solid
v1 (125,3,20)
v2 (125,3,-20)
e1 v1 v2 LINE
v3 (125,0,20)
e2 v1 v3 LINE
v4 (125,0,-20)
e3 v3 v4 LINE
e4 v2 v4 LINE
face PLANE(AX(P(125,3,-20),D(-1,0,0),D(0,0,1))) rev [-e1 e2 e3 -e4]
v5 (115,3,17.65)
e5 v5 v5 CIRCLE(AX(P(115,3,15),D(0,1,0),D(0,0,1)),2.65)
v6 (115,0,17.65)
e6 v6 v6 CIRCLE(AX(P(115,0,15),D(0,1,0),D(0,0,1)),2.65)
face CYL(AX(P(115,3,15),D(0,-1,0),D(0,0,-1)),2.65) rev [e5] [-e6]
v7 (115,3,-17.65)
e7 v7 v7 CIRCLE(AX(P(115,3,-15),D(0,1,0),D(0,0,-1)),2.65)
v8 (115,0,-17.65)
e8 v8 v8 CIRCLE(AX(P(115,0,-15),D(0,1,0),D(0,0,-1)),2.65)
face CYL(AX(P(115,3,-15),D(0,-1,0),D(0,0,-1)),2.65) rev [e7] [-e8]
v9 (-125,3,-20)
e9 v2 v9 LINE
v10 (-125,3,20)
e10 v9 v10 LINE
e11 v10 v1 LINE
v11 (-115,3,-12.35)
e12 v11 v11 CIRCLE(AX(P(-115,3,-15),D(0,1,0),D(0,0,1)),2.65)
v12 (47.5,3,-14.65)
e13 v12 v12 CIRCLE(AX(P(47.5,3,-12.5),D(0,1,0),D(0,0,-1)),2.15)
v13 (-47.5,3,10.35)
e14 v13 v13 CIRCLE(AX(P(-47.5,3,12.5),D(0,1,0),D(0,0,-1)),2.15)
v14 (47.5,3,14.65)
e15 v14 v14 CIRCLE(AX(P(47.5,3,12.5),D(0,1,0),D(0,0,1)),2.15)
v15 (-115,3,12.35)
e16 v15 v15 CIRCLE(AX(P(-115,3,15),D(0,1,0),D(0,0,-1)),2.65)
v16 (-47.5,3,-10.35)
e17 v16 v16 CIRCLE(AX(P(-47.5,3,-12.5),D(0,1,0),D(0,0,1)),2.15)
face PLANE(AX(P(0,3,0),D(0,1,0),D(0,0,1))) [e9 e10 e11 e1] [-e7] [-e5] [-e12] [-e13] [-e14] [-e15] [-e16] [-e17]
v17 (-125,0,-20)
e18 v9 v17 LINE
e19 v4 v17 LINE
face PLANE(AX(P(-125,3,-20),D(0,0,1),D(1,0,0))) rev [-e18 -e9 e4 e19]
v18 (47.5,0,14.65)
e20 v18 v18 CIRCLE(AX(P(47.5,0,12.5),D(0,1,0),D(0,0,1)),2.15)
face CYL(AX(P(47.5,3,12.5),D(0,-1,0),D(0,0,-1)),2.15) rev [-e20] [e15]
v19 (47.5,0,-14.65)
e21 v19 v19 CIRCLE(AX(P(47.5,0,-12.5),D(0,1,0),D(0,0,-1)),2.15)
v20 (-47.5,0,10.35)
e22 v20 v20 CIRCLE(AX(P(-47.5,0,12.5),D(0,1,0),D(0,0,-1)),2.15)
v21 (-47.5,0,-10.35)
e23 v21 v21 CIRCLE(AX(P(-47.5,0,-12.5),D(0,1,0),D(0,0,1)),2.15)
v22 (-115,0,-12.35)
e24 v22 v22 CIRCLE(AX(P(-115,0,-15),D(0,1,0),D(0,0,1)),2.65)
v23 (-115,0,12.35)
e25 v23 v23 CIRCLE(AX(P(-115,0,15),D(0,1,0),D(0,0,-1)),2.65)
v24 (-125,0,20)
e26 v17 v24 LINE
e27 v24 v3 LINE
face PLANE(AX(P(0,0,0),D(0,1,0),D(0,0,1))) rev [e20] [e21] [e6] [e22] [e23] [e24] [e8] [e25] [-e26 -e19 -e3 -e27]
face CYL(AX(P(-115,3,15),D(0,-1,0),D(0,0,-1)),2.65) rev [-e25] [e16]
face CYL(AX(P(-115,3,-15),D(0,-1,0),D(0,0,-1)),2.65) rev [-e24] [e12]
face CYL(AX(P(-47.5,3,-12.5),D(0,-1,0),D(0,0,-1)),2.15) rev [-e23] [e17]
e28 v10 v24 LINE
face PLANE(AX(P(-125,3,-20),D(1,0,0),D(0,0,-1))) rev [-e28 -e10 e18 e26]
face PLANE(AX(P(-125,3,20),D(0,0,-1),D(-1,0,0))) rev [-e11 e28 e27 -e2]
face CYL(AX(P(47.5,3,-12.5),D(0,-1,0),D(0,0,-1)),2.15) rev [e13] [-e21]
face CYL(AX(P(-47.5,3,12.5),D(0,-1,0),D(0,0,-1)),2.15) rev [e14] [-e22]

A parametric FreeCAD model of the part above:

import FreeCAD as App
import Part
import Sketcher

V = App.Vector


def add_polygon(sketch, points):
    """Adds a closed chain of lines whose ends are joined by coincident constraints."""
    first, n = sketch.GeometryCount, len(points)
    for a, b in zip(points, points[1:] + points[:1]):
        sketch.addGeometry(Part.LineSegment(App.Vector(*a, 0), App.Vector(*b, 0)), False)
    for i in range(n):
        sketch.addConstraint(Sketcher.Constraint("Coincident", first + i, 2, first + (i + 1) % n, 1))

doc = App.newDocument("Part")
body = doc.addObject("PartDesign::Body", "Body")

sketch1 = body.newObject("Sketcher::SketchObject", "Sketch")
sketch1.AttachmentSupport = (doc.getObject("XZ_Plane"), [""])
sketch1.MapMode = "FlatFace"
add_polygon(sketch1, [(-125, -20), (-125, 20), (125, 20), (125, -20)])
sketch1.addGeometry(Part.Circle(V(-115, 15, 0), V(0, 0, 1), 2.6), False)
sketch1.addGeometry(Part.Circle(V(-47.5, 12.5, 0), V(0, 0, 1), 2.1), False)
sketch1.addGeometry(Part.Circle(V(47.5, 12.5, 0), V(0, 0, 1), 2.1), False)
sketch1.addGeometry(Part.Circle(V(115, 15, 0), V(0, 0, 1), 2.6), False)
sketch1.addGeometry(Part.Circle(V(-115, -15, 0), V(0, 0, 1), 2.6), False)
sketch1.addGeometry(Part.Circle(V(-47.5, -12.5, 0), V(0, 0, 1), 2.1), False)
sketch1.addGeometry(Part.Circle(V(47.5, -12.5, 0), V(0, 0, 1), 2.1), False)
sketch1.addGeometry(Part.Circle(V(115, -15, 0), V(0, 0, 1), 2.6), False)
sketch1.addConstraint([
    Sketcher.Constraint("Vertical", 0),
    Sketcher.Constraint("Horizontal", 1),
    Sketcher.Constraint("Vertical", 2),
    Sketcher.Constraint("Horizontal", 3),
    Sketcher.Constraint("Equal", 5, 6),
    Sketcher.Constraint("Equal", 4, 7),
    Sketcher.Constraint("Equal", 7, 8),
    Sketcher.Constraint("Equal", 6, 9),
    Sketcher.Constraint("Equal", 9, 10),
    Sketcher.Constraint("Equal", 8, 11),
    Sketcher.Constraint("Symmetric", 7, 3, 8, 3, -1, 1),
    Sketcher.Constraint("Symmetric", 6, 3, 9, 3, -1, 1),
    Sketcher.Constraint("Symmetric", 5, 3, 10, 3, -1, 1),
    Sketcher.Constraint("Symmetric", 4, 3, 11, 3, -1, 1),
    Sketcher.Constraint("Symmetric", 0, 2, 2, 2, -1, 1),
    Sketcher.Constraint("Symmetric", 5, 3, 6, 3, -2),
    Sketcher.Constraint("Symmetric", 4, 3, 7, 3, -2),
    Sketcher.Constraint("Diameter", 4, 5.3),
    Sketcher.Constraint("Diameter", 5, 4.3),
    Sketcher.Constraint("DistanceX", 1, 1, 1, 2, 250.0),
    Sketcher.Constraint("DistanceY", 0, 1, 0, 2, 40.0),
    Sketcher.Constraint("DistanceX", 4, 3, -1, 1, 115.0),
    Sketcher.Constraint("DistanceY", -1, 1, 4, 3, 15.0),
    Sketcher.Constraint("DistanceX", 5, 3, 6, 3, 95.0),
    Sketcher.Constraint("DistanceY", 9, 3, 5, 3, 25.0),
])
pad1 = body.newObject("PartDesign::Pad", "Pad")
pad1.Profile = sketch1
pad1.Length = 3
pad1.Reversed = True

doc.recompute()
